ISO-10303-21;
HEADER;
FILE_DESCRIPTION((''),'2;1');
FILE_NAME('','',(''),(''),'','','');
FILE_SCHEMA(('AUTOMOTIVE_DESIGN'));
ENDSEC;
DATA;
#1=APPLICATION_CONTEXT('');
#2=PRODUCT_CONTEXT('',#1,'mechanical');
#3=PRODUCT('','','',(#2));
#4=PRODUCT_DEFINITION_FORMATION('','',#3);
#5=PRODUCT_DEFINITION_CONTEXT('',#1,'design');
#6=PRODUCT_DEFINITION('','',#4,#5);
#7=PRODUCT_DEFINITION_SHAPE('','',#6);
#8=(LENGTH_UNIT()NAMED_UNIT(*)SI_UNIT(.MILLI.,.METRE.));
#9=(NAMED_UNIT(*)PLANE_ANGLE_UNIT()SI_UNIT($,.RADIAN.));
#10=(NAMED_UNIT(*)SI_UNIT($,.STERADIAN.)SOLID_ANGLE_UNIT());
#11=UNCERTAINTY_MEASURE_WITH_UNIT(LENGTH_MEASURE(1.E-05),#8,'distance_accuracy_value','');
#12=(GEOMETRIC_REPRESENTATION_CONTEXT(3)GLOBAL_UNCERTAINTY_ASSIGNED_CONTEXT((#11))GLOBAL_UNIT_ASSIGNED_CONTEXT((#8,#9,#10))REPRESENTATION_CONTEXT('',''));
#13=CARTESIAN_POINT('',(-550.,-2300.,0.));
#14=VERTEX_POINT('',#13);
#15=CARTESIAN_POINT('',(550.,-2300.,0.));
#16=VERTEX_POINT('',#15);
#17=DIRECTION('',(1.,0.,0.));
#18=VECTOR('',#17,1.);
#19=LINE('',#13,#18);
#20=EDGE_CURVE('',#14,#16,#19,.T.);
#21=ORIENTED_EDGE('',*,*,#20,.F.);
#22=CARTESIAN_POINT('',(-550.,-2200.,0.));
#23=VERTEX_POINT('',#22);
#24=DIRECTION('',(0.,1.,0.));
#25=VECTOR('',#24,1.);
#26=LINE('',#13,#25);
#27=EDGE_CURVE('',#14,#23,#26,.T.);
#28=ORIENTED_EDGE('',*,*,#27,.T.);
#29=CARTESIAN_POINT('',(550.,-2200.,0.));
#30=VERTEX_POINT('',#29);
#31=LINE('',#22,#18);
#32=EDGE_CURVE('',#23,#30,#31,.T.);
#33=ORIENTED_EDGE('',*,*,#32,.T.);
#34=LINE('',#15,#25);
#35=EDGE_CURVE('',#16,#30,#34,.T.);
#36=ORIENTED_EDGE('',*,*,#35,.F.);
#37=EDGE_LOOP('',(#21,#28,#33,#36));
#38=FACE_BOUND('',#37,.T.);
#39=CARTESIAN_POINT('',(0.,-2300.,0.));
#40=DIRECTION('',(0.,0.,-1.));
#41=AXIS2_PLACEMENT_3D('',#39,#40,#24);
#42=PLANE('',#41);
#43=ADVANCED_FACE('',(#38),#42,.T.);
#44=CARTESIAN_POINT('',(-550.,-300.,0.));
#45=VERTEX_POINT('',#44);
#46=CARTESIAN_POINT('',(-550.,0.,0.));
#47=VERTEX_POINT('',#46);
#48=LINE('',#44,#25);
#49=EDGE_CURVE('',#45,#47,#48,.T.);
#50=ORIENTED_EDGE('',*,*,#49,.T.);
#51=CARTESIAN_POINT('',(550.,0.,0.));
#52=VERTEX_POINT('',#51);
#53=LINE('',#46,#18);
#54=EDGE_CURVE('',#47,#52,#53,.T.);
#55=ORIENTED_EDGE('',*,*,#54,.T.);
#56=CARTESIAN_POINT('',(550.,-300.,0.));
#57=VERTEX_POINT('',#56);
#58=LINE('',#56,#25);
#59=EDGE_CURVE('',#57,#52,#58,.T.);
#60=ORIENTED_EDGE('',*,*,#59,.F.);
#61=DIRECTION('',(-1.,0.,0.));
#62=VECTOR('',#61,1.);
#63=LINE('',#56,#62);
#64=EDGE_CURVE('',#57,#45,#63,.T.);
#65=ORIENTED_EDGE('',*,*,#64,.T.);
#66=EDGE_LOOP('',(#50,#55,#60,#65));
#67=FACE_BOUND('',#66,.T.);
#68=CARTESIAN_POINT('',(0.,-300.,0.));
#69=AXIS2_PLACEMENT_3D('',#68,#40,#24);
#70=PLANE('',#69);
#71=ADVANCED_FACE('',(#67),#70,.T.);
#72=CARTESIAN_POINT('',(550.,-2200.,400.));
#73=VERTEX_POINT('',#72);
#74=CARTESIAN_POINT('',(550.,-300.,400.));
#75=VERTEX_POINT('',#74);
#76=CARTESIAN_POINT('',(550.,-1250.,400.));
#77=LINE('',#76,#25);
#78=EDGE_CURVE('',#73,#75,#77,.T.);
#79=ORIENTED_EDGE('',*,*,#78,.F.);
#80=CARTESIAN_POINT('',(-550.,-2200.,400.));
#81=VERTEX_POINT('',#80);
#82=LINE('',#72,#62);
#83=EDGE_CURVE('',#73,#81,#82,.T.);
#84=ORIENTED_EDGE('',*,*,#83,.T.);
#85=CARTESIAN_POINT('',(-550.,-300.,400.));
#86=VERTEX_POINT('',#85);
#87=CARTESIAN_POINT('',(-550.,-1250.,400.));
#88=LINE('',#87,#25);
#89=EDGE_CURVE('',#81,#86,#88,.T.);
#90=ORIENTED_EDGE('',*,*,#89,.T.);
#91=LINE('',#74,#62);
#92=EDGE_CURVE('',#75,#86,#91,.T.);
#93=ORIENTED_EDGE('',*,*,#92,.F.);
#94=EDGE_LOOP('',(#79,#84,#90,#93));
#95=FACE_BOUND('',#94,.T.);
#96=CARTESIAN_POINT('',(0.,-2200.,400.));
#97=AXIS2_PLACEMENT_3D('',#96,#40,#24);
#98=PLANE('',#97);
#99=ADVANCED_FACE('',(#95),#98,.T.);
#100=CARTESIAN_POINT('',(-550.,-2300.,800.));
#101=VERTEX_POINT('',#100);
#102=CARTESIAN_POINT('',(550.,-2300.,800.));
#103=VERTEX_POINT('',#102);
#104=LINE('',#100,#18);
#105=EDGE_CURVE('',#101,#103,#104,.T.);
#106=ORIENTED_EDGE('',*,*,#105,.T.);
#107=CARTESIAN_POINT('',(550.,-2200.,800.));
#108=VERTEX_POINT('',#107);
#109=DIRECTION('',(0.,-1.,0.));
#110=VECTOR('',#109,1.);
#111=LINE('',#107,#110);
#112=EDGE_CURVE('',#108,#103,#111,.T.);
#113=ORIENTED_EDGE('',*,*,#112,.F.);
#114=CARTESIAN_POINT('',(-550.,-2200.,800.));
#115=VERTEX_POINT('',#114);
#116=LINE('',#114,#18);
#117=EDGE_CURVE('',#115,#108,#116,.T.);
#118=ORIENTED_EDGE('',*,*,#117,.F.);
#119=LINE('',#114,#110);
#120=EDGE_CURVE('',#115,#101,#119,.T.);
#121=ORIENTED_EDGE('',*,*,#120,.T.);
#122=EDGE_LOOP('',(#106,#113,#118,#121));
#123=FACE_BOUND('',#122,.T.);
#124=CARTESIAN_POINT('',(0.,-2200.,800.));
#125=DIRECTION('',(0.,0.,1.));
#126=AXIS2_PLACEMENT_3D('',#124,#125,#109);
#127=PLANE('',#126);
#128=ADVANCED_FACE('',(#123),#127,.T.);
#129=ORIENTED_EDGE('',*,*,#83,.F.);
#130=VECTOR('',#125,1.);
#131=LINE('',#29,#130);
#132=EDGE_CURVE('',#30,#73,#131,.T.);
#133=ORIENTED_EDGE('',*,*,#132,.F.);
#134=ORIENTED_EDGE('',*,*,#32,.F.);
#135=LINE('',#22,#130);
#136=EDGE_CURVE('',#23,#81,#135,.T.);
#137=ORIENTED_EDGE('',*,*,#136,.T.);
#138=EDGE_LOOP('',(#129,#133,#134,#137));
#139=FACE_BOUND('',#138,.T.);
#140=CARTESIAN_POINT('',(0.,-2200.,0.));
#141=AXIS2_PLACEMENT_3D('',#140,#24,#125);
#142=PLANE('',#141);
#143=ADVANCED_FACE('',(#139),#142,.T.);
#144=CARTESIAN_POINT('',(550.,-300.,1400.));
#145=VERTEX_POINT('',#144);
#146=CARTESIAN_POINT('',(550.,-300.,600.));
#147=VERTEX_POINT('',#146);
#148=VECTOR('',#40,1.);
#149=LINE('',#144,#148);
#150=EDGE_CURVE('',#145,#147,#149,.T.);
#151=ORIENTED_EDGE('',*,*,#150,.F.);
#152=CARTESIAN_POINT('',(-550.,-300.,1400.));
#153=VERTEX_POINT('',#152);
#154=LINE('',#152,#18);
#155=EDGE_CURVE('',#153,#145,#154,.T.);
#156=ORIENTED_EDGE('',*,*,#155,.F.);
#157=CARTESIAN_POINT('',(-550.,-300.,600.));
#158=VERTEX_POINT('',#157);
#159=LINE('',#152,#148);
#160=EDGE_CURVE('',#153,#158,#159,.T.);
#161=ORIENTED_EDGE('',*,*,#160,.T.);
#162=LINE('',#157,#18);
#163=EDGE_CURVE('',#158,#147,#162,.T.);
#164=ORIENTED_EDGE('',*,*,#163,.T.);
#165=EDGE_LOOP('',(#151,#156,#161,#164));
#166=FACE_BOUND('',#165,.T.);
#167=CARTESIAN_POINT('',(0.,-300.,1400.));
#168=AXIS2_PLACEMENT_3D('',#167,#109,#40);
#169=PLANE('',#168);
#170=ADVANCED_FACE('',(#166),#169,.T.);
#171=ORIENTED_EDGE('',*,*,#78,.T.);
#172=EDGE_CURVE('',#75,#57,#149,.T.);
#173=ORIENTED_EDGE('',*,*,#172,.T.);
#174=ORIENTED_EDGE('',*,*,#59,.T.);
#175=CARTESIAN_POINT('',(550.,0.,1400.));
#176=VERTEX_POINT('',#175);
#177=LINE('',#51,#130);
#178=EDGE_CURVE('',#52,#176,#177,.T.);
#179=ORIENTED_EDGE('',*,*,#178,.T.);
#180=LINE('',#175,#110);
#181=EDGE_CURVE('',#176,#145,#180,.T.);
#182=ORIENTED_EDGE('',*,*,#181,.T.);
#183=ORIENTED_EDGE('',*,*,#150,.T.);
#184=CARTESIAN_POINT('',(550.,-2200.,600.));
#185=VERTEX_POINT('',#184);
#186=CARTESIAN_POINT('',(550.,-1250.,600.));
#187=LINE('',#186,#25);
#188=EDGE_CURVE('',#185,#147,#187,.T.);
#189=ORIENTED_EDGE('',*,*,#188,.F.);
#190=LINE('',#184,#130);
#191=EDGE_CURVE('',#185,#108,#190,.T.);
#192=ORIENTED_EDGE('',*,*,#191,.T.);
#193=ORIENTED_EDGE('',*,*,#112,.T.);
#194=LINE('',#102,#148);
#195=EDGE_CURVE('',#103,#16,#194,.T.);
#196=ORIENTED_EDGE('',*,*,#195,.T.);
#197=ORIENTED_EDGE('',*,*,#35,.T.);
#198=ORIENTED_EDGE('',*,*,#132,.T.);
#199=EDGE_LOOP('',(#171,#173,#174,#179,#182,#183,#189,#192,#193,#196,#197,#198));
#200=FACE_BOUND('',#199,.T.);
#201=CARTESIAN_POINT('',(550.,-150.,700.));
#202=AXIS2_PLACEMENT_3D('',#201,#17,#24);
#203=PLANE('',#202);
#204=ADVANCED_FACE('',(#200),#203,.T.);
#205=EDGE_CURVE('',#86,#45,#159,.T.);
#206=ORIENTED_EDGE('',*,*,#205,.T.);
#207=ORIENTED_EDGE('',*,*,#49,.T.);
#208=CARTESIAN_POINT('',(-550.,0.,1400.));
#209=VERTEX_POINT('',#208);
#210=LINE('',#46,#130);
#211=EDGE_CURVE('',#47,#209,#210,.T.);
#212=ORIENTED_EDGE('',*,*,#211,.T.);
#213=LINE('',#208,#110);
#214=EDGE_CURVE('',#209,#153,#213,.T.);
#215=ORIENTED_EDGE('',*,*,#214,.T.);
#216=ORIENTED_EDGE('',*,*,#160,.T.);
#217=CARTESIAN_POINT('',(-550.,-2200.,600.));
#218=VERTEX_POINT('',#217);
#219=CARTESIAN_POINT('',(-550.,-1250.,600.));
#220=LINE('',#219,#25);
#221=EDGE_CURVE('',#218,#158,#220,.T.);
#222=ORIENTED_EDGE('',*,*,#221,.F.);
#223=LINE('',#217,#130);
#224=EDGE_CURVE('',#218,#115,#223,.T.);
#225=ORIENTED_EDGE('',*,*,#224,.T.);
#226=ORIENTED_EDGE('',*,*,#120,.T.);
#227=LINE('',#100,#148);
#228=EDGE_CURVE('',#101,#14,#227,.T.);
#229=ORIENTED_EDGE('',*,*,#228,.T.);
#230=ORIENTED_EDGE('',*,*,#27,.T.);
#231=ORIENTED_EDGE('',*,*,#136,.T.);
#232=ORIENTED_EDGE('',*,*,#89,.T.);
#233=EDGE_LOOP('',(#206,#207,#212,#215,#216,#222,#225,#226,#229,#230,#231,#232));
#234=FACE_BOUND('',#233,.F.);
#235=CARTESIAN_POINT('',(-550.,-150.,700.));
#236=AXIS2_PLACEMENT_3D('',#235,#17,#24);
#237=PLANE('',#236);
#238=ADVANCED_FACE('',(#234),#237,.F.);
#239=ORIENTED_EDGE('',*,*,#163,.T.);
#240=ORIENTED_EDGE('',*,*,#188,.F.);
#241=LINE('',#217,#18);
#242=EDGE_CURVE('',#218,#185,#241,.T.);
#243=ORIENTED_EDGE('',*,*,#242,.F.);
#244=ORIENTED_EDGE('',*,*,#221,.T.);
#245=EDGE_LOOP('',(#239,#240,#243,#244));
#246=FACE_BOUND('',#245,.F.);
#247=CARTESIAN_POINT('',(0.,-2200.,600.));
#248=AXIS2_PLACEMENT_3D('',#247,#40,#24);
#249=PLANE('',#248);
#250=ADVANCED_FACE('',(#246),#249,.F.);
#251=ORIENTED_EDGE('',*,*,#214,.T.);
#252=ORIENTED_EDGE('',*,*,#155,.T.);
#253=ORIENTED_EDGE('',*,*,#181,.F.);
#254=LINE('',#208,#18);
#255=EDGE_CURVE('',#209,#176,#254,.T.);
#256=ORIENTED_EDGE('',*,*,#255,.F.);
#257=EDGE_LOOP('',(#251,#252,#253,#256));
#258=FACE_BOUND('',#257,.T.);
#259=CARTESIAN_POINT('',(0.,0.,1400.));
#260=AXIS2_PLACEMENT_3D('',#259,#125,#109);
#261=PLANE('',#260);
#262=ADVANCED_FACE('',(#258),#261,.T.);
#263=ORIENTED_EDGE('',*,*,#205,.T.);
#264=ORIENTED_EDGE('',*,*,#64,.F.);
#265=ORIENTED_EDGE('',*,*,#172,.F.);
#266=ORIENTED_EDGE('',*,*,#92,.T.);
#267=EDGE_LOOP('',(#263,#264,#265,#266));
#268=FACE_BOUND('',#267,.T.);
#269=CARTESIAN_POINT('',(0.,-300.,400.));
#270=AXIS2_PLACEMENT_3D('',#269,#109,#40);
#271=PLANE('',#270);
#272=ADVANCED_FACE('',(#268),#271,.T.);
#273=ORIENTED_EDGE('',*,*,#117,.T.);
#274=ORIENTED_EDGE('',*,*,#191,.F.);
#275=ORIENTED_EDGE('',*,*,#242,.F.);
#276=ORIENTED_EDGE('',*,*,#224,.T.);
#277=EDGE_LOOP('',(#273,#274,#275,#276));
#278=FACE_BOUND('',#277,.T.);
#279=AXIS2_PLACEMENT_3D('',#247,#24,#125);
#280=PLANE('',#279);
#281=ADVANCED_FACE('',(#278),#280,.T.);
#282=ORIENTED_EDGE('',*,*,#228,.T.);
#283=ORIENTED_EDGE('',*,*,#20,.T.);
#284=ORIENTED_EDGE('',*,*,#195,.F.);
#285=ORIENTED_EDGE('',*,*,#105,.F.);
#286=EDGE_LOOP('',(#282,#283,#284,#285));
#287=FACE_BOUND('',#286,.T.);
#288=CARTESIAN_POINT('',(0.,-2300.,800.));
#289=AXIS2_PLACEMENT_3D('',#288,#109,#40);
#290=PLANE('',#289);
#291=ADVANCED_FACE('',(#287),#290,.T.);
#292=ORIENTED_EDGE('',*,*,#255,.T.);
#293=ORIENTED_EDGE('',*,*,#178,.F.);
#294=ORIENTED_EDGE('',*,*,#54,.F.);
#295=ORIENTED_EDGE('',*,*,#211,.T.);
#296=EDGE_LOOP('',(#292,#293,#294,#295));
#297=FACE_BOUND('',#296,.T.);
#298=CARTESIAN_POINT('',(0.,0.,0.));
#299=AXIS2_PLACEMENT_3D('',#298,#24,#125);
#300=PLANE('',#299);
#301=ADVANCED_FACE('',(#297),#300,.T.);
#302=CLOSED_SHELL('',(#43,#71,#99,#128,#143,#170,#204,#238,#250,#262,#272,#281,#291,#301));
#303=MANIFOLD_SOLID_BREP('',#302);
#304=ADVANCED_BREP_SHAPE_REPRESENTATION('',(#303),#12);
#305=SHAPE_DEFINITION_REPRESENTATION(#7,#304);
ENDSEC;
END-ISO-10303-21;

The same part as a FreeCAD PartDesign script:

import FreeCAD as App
import Part
import Sketcher
Q = App.Units.Quantity


def add_polygon(sketch, points):
    """Adds a closed chain of lines whose ends are joined by coincident constraints."""
    first, n = sketch.GeometryCount, len(points)
    for a, b in zip(points, points[1:] + points[:1]):
        sketch.addGeometry(Part.LineSegment(App.Vector(*a, 0), App.Vector(*b, 0)), False)
    for i in range(n):
        sketch.addConstraint(Sketcher.Constraint("Coincident", first + i, 2, first + (i + 1) % n, 1))

doc = App.newDocument("Part")
body = doc.addObject("PartDesign::Body", "Body")

# Sketch on YZ plane
sketch1 = body.newObject("Sketcher::SketchObject", "Sketch")
sketch1.AttachmentSupport = (doc.getObject("YZ_Plane"), [""])
sketch1.MapMode = "FlatFace"
add_polygon(sketch1, [(-300, 0), (0, 0), (0, 1400), (-300, 1400), (-300, 600), (-2200, 600), (-2200, 800), (-2300, 800), (-2300, 0), (-2200, 0), (-2200, 400), (-300, 400)])  # lines 0-11
sketch1.addConstraint([
    Sketcher.Constraint("Horizontal", 0),
    Sketcher.Constraint("Vertical", 1),
    Sketcher.Constraint("Horizontal", 2),
    Sketcher.Constraint("Vertical", 3),
    Sketcher.Constraint("Horizontal", 4),
    Sketcher.Constraint("Vertical", 5),
    Sketcher.Constraint("Horizontal", 6),
    Sketcher.Constraint("Vertical", 7),
    Sketcher.Constraint("Horizontal", 8),
    Sketcher.Constraint("Vertical", 9),
    Sketcher.Constraint("Horizontal", 10),
    Sketcher.Constraint("Vertical", 11),
    Sketcher.Constraint("Coincident", 0, 2, -1, 1),
    Sketcher.Constraint("PointOnObject", 7, 2, -1),
    Sketcher.Constraint("Vertical", 5, 2, 8, 2),
    Sketcher.Constraint("Vertical", 3, 2, 10, 2),
    Sketcher.Constraint("Equal", 3, 7),
    Sketcher.Constraint("DistanceX", 0, 1, 0, 2, Q("300 mm")),
    Sketcher.Constraint("DistanceX", 4, 2, 4, 1, Q("1900 mm")),
    Sketcher.Constraint("DistanceX", 6, 2, 6, 1, Q("100 mm")),
    Sketcher.Constraint("DistanceY", 1, 1, 1, 2, Q("1400 mm")),
    Sketcher.Constraint("DistanceY", 3, 2, 3, 1, Q("800 mm")),
    Sketcher.Constraint("DistanceY", 9, 1, 9, 2, Q("400 mm")),
])
pad1 = body.newObject("PartDesign::Pad", "Pad")
pad1.Profile = sketch1
pad1.Length = 1100
pad1.Midplane = True

doc.recompute()
